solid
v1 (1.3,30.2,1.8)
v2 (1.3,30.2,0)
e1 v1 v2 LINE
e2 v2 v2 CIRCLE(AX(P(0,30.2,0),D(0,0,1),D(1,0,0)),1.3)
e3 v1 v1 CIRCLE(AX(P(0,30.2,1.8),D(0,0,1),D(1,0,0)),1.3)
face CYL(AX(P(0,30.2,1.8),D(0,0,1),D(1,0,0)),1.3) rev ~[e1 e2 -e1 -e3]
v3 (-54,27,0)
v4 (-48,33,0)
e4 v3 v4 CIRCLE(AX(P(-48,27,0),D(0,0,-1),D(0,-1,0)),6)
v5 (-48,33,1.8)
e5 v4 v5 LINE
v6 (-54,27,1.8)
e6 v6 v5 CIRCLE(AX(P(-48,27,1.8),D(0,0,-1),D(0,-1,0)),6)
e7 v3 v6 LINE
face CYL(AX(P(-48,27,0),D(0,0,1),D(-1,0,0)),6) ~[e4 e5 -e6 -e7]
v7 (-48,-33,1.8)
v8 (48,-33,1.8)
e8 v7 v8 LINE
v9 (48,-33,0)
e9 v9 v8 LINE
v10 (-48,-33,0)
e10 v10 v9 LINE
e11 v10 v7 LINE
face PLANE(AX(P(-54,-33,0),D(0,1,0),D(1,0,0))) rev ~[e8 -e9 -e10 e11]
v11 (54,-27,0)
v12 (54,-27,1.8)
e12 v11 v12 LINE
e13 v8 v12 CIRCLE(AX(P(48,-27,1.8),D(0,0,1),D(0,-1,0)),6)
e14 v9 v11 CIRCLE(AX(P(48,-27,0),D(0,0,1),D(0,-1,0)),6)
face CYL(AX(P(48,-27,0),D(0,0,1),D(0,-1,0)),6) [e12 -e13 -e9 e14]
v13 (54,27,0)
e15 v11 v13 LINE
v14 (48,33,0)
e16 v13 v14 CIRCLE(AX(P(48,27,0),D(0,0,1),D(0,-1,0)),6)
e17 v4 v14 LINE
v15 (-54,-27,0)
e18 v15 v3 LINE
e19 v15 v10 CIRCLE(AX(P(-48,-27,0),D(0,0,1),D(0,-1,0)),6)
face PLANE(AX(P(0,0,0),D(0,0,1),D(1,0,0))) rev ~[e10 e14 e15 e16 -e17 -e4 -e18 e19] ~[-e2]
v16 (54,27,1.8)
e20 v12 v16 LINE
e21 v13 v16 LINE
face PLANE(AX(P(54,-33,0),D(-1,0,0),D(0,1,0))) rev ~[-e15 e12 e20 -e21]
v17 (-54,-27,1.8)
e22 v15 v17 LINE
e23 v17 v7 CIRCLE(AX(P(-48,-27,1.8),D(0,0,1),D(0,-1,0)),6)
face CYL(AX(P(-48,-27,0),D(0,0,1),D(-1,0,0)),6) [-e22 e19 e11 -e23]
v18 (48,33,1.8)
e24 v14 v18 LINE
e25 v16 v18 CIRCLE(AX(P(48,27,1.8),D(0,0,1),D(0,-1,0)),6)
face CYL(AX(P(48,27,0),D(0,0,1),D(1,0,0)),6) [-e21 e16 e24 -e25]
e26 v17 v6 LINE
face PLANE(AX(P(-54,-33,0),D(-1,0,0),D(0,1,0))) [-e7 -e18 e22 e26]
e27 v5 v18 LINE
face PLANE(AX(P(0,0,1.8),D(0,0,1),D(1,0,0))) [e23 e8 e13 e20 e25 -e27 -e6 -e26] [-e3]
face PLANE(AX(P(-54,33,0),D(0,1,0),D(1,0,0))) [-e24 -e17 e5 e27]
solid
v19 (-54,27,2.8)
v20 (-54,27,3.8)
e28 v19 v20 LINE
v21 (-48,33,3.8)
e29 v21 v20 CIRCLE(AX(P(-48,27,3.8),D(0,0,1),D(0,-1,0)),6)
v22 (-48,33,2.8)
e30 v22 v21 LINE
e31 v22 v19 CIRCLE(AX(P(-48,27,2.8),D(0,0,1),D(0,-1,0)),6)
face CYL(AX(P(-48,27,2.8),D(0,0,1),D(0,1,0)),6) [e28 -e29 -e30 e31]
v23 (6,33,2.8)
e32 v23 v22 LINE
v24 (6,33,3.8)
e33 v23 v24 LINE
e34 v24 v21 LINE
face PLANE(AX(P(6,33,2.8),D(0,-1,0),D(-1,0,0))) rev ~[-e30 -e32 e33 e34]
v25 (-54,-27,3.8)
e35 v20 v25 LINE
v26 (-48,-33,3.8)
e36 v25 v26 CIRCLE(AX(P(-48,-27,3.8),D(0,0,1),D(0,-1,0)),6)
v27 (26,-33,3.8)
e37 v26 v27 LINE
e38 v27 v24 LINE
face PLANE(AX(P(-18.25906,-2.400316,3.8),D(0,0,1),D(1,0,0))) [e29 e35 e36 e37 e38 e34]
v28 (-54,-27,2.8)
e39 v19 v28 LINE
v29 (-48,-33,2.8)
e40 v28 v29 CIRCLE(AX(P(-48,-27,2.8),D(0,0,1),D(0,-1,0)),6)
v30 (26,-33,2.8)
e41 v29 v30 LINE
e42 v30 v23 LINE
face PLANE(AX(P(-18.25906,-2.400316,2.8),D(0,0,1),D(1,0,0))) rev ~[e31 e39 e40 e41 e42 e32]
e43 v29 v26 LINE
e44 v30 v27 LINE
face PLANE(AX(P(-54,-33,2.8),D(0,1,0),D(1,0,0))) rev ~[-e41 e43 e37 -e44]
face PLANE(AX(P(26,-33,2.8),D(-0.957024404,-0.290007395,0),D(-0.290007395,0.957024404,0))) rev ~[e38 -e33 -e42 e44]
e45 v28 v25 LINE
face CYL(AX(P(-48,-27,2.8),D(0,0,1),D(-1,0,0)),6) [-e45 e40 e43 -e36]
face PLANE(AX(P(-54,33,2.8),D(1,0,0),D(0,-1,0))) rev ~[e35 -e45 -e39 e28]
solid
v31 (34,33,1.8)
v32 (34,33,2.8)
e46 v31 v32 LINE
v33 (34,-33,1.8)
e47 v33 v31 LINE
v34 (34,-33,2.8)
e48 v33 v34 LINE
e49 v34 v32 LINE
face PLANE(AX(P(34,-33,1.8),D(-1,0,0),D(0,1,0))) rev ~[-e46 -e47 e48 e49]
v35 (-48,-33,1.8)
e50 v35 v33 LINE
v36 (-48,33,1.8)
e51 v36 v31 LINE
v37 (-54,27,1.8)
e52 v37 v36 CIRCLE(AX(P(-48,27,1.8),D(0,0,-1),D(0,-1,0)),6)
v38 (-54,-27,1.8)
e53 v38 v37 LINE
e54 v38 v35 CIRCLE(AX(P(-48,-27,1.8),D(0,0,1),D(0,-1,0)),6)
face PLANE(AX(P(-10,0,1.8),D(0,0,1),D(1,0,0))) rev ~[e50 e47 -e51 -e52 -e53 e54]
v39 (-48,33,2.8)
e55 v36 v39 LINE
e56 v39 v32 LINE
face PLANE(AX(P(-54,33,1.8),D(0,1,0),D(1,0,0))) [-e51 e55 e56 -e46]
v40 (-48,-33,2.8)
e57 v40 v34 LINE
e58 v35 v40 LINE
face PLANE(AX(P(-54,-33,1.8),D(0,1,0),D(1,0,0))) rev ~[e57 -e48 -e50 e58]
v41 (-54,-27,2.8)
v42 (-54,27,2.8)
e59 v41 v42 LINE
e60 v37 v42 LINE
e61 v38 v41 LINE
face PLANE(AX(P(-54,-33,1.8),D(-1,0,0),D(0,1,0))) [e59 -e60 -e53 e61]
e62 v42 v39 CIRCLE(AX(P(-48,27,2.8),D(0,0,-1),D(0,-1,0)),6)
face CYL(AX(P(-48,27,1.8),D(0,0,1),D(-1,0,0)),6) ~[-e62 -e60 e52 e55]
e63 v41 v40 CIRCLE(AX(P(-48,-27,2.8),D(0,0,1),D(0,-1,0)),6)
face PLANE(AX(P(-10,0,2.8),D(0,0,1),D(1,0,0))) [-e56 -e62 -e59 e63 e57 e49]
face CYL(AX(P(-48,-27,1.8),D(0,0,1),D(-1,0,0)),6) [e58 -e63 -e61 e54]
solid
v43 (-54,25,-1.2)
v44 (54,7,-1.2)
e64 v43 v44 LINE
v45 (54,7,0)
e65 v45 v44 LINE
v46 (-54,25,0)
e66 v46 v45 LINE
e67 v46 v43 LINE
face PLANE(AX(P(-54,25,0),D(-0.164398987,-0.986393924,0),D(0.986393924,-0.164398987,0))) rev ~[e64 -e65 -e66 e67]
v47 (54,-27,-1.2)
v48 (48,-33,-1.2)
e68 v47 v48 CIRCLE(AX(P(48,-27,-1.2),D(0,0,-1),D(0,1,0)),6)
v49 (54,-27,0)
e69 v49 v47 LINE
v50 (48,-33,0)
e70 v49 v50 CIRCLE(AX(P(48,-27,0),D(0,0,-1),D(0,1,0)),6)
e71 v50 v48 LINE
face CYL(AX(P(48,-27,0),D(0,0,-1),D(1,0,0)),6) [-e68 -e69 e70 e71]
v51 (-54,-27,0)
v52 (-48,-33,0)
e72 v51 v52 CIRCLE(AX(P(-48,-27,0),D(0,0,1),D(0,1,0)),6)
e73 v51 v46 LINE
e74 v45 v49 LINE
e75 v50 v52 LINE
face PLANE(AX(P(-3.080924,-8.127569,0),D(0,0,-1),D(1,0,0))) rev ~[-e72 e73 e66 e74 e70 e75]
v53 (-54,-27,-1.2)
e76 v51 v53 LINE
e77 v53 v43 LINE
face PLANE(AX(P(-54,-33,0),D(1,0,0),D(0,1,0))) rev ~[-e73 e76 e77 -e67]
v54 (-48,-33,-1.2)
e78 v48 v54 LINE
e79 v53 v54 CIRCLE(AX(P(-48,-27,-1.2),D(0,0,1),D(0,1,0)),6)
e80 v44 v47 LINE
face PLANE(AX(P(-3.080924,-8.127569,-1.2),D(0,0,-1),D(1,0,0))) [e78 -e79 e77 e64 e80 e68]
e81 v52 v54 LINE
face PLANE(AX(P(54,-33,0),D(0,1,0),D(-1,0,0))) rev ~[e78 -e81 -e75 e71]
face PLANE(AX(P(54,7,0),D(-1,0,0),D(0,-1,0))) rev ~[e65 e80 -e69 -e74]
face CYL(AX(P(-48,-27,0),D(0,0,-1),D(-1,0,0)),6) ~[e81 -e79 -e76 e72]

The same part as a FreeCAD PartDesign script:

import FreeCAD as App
import Part
import Sketcher
Q = App.Units.Quantity


def edges_at(feature, points):
    """Names of the edges that pass closest to the given points."""
    edges = feature.Shape.Edges
    near = lambda p: min(range(len(edges)), key=lambda i: edges[i].distToShape(Part.Vertex(*p))[0])
    return sorted({f"Edge{near(p) + 1}" for p in points})


def add_polygon(sketch, points):
    """Adds a closed chain of lines whose ends are joined by coincident constraints."""
    first, n = sketch.GeometryCount, len(points)
    for a, b in zip(points, points[1:] + points[:1]):
        sketch.addGeometry(Part.LineSegment(App.Vector(*a, 0), App.Vector(*b, 0)), False)
    for i in range(n):
        sketch.addConstraint(Sketcher.Constraint("Coincident", first + i, 2, first + (i + 1) % n, 1))

doc = App.newDocument("Part")
body = doc.addObject("PartDesign::Body", "Body")

# Sketch on XY plane
sketch1 = body.newObject("Sketcher::SketchObject", "Sketch")
sketch1.AttachmentSupport = (doc.getObject("XY_Plane"), [""])
sketch1.MapMode = "FlatFace"
add_polygon(sketch1, [(-54, 33), (-54, -33), (54, -33), (54, 33)])  # lines 0-3
sketch1.addConstraint([
    Sketcher.Constraint("Vertical", 0),
    Sketcher.Constraint("Horizontal", 1),
    Sketcher.Constraint("Vertical", 2),
    Sketcher.Constraint("Horizontal", 3),
    Sketcher.Constraint("Symmetric", 0, 2, 2, 2, -1, 1),
    Sketcher.Constraint("DistanceX", 1, 1, 1, 2, Q("108 mm")),
    Sketcher.Constraint("DistanceY", 0, 2, 0, 1, Q("66 mm")),
])
pad1 = body.newObject("PartDesign::Pad", "Pad")
pad1.Profile = sketch1
pad1.Length = 1.8
doc.recompute()

fillet = body.newObject("PartDesign::Fillet", "Fillet")
fillet.Base = (pad1, edges_at(pad1, [
    (-54, 33, 0.9),
    (-54, -33, 0.9),
    (54, -33, 0.9),
    (54, 33, 0.9),
]))
fillet.Radius = 6

# Sketch on XY plane
sketch2 = body.newObject("Sketcher::SketchObject", "Sketch001")
sketch2.AttachmentSupport = (doc.getObject("XY_Plane"), [""])
sketch2.MapMode = "FlatFace"
sketch2.AttachmentOffset = App.Placement(App.Vector(0, 0, 1.8), App.Rotation())
sketch2.addGeometry(Part.Circle(App.Vector(0, 30.2, 0), App.Vector(0, 0, 1), 1.3), False)
sketch2.addConstraint([
    Sketcher.Constraint("PointOnObject", 0, 3, -2),
    Sketcher.Constraint("Diameter", 0, Q("2.6 mm")),
    Sketcher.Constraint("DistanceY", -1, 1, 0, 3, Q("30.2 mm")),
])
pocket1 = body.newObject("PartDesign::Pocket", "Pocket")
pocket1.Profile = sketch2
pocket1.Length = 25
body2 = doc.addObject("PartDesign::Body", "Body001")

# Sketch on XY plane
sketch3 = body2.newObject("Sketcher::SketchObject", "Sketch002")
sketch3.AttachmentSupport = (doc.getObject("XY_Plane001"), [""])
sketch3.MapMode = "FlatFace"
add_polygon(sketch3, [(-54, -33), (-54, 25), (54, 7), (54, -33)])  # lines 0-3
sketch3.addConstraint([
    Sketcher.Constraint("Vertical", 0),
    Sketcher.Constraint("Vertical", 2),
    Sketcher.Constraint("Horizontal", 3),
    Sketcher.Constraint("DistanceX", 3, 2, 3, 1, Q("108 mm")),
    Sketcher.Constraint("DistanceY", 0, 1, 0, 2, Q("58 mm")),
    Sketcher.Constraint("DistanceY", 2, 2, 2, 1, Q("40 mm")),
    Sketcher.Constraint("DistanceX", 0, 2, -1, 1, Q("54 mm")),
    Sketcher.Constraint("DistanceY", -1, 1, 0, 2, Q("25 mm")),
])
pad2 = body2.newObject("PartDesign::Pad", "Pad001")
pad2.Profile = sketch3
pad2.Length = 1.2
pad2.Reversed = True
doc.recompute()

fillet2 = body2.newObject("PartDesign::Fillet", "Fillet001")
fillet2.Base = (pad2, edges_at(pad2, [(-54, -33, -0.6), (54, -33, -0.6)]))
fillet2.Radius = 6
body3 = doc.addObject("PartDesign::Body", "Body002")

# Sketch on XY plane
sketch4 = body3.newObject("Sketcher::SketchObject", "Sketch003")
sketch4.AttachmentSupport = (doc.getObject("XY_Plane002"), [""])
sketch4.MapMode = "FlatFace"
sketch4.AttachmentOffset = App.Placement(App.Vector(0, 0, 1.8), App.Rotation())
add_polygon(sketch4, [(-54, 33), (-54, -33), (34, -33), (34, 33)])  # lines 0-3
sketch4.addConstraint([
    Sketcher.Constraint("Vertical", 0),
    Sketcher.Constraint("Horizontal", 1),
    Sketcher.Constraint("Vertical", 2),
    Sketcher.Constraint("Horizontal", 3),
    Sketcher.Constraint("DistanceX", 1, 1, 1, 2, Q("88 mm")),
    Sketcher.Constraint("DistanceY", 0, 2, 0, 1, Q("66 mm")),
    Sketcher.Constraint("DistanceX", 0, 2, -1, 1, Q("54 mm")),
    Sketcher.Constraint("DistanceY", 0, 2, -1, 1, Q("33 mm")),
])
pad3 = body3.newObject("PartDesign::Pad", "Pad002")
pad3.Profile = sketch4
pad3.Length = 1
doc.recompute()

fillet3 = body3.newObject("PartDesign::Fillet", "Fillet002")
fillet3.Base = (pad3, edges_at(pad3, [(-54, 33, 2.3), (-54, -33, 2.3)]))
fillet3.Radius = 6
body4 = doc.addObject("PartDesign::Body", "Body003")

# Sketch on XY plane
sketch5 = body4.newObject("Sketcher::SketchObject", "Sketch004")
sketch5.AttachmentSupport = (doc.getObject("XY_Plane003"), [""])
sketch5.MapMode = "FlatFace"
sketch5.AttachmentOffset = App.Placement(App.Vector(0, 0, 2.8), App.Rotation())
add_polygon(sketch5, [(6, 33), (-54, 33), (-54, -33), (26, -33)])  # lines 0-3
sketch5.addConstraint([
    Sketcher.Constraint("Horizontal", 0),
    Sketcher.Constraint("Vertical", 1),
    Sketcher.Constraint("Horizontal", 2),
    Sketcher.Constraint("DistanceX", 0, 2, 0, 1, Q("60 mm")),
    Sketcher.Constraint("DistanceX", 2, 1, 2, 2, Q("80 mm")),
    Sketcher.Constraint("DistanceY", 1, 2, 1, 1, Q("66 mm")),
    Sketcher.Constraint("DistanceX", 0, 2, -1, 1, Q("54 mm")),
    Sketcher.Constraint("DistanceY", -1, 1, 0, 2, Q("33 mm")),
])
pad4 = body4.newObject("PartDesign::Pad", "Pad003")
pad4.Profile = sketch5
pad4.Length = 1
doc.recompute()

fillet4 = body4.newObject("PartDesign::Fillet", "Fillet003")
fillet4.Base = (pad4, edges_at(pad4, [(-54, 33, 3.3), (-54, -33, 3.3)]))
fillet4.Radius = 6

doc.recompute()
